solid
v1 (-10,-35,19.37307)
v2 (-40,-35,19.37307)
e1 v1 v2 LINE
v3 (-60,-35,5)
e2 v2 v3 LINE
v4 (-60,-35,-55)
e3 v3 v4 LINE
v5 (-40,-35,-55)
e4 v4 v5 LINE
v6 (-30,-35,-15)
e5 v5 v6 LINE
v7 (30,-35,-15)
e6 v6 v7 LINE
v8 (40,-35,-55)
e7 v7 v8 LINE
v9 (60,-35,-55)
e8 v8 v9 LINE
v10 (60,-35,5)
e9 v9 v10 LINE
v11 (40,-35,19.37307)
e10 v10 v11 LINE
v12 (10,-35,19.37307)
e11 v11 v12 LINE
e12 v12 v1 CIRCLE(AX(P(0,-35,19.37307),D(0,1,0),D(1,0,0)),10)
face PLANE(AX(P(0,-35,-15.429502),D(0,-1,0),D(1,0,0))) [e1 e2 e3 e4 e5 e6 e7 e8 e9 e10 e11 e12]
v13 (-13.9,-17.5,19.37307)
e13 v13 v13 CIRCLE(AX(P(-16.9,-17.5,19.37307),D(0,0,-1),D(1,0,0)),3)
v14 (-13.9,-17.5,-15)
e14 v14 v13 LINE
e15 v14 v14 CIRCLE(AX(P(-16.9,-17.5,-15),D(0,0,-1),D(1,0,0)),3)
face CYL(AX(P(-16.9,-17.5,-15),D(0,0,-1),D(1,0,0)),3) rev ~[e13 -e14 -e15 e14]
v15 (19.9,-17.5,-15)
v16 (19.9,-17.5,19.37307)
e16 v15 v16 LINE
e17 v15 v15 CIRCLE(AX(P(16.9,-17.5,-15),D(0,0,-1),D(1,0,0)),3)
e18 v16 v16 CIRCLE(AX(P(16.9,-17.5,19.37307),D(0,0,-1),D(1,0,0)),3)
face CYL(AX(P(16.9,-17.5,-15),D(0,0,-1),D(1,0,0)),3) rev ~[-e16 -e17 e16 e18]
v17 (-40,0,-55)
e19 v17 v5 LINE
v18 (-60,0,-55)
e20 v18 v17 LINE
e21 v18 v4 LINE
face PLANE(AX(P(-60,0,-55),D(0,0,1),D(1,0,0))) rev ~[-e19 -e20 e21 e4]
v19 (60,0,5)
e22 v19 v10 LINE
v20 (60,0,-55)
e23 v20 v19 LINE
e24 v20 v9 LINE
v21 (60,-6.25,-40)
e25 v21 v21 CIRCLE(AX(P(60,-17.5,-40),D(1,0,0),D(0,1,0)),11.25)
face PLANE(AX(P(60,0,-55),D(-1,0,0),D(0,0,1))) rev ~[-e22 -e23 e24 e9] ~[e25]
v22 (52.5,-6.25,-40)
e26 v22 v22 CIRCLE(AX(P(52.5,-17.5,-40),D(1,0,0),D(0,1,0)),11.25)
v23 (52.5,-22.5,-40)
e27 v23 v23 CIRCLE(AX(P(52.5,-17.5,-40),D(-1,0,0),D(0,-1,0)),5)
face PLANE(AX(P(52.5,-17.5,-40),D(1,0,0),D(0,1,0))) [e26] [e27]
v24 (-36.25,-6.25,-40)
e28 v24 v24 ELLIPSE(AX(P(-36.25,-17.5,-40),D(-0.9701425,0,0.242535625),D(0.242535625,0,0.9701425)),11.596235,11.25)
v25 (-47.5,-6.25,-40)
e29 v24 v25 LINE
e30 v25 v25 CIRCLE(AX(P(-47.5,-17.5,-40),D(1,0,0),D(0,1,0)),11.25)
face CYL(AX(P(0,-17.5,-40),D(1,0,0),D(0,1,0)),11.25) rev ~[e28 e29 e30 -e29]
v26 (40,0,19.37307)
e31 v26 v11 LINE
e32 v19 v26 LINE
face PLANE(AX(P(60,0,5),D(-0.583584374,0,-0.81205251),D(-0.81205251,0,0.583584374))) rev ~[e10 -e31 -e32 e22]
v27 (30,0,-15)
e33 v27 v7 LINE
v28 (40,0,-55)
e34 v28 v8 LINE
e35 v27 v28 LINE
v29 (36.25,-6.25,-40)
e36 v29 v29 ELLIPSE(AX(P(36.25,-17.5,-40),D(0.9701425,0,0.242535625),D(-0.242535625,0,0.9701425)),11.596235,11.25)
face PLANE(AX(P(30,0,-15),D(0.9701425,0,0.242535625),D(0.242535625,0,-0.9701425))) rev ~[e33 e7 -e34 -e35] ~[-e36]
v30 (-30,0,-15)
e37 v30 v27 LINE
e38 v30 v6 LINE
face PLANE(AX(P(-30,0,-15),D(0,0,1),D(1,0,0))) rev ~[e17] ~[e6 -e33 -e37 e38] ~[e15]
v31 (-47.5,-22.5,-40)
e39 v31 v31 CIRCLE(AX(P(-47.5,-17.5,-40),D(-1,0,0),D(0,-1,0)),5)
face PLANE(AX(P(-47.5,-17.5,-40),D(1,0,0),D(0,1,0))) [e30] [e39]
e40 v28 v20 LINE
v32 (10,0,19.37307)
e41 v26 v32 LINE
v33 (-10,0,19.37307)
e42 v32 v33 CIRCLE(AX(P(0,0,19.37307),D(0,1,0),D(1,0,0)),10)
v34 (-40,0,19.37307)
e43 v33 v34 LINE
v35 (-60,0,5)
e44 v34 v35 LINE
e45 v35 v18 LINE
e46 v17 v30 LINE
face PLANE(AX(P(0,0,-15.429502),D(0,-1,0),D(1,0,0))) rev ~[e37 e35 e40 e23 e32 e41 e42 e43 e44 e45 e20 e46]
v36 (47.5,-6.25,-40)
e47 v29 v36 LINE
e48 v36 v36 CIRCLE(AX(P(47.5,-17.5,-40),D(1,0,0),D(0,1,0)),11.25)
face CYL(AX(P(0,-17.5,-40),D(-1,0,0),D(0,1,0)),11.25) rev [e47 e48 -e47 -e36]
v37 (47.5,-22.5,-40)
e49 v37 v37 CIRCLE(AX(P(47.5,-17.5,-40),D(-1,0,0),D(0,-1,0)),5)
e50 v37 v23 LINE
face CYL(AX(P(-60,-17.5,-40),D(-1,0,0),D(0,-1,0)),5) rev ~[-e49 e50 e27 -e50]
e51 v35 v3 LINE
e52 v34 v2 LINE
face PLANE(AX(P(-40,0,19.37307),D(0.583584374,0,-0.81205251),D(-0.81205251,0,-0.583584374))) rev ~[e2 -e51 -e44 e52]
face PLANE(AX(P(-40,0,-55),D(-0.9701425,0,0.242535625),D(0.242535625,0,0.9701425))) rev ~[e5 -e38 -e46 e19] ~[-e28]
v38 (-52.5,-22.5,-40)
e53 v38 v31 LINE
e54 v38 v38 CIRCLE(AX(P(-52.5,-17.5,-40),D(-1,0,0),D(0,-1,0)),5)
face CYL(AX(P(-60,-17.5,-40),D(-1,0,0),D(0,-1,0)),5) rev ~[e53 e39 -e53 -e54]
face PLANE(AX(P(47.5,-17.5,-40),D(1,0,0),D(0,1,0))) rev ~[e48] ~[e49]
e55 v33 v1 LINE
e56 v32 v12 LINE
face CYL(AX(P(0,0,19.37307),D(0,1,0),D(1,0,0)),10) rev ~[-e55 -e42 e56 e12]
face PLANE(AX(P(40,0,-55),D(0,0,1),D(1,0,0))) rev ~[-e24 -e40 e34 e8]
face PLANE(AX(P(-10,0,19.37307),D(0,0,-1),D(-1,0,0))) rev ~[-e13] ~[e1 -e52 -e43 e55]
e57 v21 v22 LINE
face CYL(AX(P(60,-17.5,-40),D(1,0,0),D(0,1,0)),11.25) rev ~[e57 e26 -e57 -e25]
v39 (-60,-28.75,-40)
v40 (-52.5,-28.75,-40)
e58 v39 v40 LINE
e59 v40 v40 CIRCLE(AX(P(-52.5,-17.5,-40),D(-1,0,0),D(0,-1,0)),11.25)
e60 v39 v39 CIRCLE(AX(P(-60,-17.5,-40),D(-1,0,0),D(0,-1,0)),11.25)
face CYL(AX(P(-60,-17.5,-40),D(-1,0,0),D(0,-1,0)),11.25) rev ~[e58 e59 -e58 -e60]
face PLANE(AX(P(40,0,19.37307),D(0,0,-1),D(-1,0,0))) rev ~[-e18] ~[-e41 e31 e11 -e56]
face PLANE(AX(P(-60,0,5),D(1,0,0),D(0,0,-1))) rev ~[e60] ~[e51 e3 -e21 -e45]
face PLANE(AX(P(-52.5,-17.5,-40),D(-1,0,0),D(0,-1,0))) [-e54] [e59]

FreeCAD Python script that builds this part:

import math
import FreeCAD as App
import Part
import Sketcher
from FreeCAD import Vector
Q = App.Units.Quantity

doc = App.newDocument("Part")
params = doc.addObject("Spreadsheet::Sheet", "Params")
for row, (alias, value) in enumerate([
    ("sketch1_radius", "10 mm"),
    ("sketch1_width", "20 mm"),
    ("sketch1_width2", "60 mm"),
    ("sketch1_width3", "30 mm"),
    ("pad1_length", "35 mm"),
    ("sketch2_diameter", "6 mm"),
    ("sketch3_diameter", "10 mm"),
    ("sketch4_diameter", "22.5 mm"),
    ("pocket3_length", "7.5 mm"),
    ("sketch5_diameter", "22.5 mm"),
    ("pocket4_length", "7.5 mm"),
    ("sketch6_diameter", "22.5 mm"),
    ("pocket5_length", "47.5 mm"),
    ("sketch7_diameter", "22.5 mm"),
    ("pocket6_length", "47.5 mm"),
], start=1):
    params.set(f"A{row}", alias)
    params.set(f"B{row}", "=" + value)
    params.setAlias(f"B{row}", alias)

body = doc.addObject("PartDesign::Body", "Body")

# Sketch on XZ plane
sketch1 = body.newObject("Sketcher::SketchObject", "Sketch")
sketch1.AttachmentSupport = (doc.getObject("XZ_Plane"), [""])
sketch1.MapMode = "FlatFace"
sketch1.addGeometry([
    Part.LineSegment(Vector(-40, 19, 0), Vector(-60, 5, 0)),  # 0
    Part.LineSegment(Vector(-60, 5, 0), Vector(-60, -55, 0)),  # 1
    Part.LineSegment(Vector(-60, -55, 0), Vector(-40, -55, 0)),  # 2
    Part.LineSegment(Vector(-40, -55, 0), Vector(-30, -15, 0)),  # 3
    Part.LineSegment(Vector(-30, -15, 0), Vector(30, -15, 0)),  # 4
    Part.LineSegment(Vector(30, -15, 0), Vector(40, -55, 0)),  # 5
    Part.LineSegment(Vector(40, -55, 0), Vector(60, -55, 0)),  # 6
    Part.LineSegment(Vector(60, -55, 0), Vector(60, 5, 0)),  # 7
    Part.LineSegment(Vector(60, 5, 0), Vector(40, 19, 0)),  # 8
    Part.LineSegment(Vector(40, 19, 0), Vector(10, 19, 0)),  # 9
    Part.ArcOfCircle(Part.Circle(Vector(0, 19, 0), Vector(0, 0, 1), 10), math.radians(180), math.radians(360)),  # 10
    Part.LineSegment(Vector(-10, 19, 0), Vector(-40, 19, 0)),  # 11
], False)
sketch1.addConstraint([
    Sketcher.Constraint("Coincident", 0, 2, 1, 1),
    Sketcher.Constraint("Coincident", 1, 2, 2, 1),
    Sketcher.Constraint("Coincident", 2, 2, 3, 1),
    Sketcher.Constraint("Coincident", 3, 2, 4, 1),
    Sketcher.Constraint("Coincident", 4, 2, 5, 1),
    Sketcher.Constraint("Coincident", 5, 2, 6, 1),
    Sketcher.Constraint("Coincident", 6, 2, 7, 1),
    Sketcher.Constraint("Coincident", 7, 2, 8, 1),
    Sketcher.Constraint("Coincident", 8, 2, 9, 1),
    Sketcher.Constraint("Coincident", 9, 2, 10, 2),
    Sketcher.Constraint("Coincident", 10, 1, 11, 1),
    Sketcher.Constraint("Coincident", 11, 2, 0, 1),
    Sketcher.Constraint("Vertical", 1),
    Sketcher.Constraint("Horizontal", 2),
    Sketcher.Constraint("Horizontal", 4),
    Sketcher.Constraint("Horizontal", 6),
    Sketcher.Constraint("Vertical", 7),
    Sketcher.Constraint("Horizontal", 9),
    Sketcher.Constraint("Horizontal", 11),
    Sketcher.Constraint("Symmetric", 2, 2, 5, 2, -2),
    Sketcher.Constraint("Symmetric", 0, 2, 7, 2, -2),
    Sketcher.Constraint("Symmetric", 9, 2, 10, 1, -2),
    Sketcher.Constraint("Horizontal", 10, 3, 8, 2),
    Sketcher.Constraint("Vertical", 5, 2, 8, 2),
    Sketcher.Constraint("Vertical", 2, 2, 11, 2),
    Sketcher.Constraint("Equal", 4, 1),
    Sketcher.Constraint("Equal", 3, 5),
    Sketcher.Constraint("Radius", 10, Q("10 mm")),
    Sketcher.Constraint("DistanceX", 2, 1, 2, 2, Q("20 mm")),
    Sketcher.Constraint("DistanceX", 4, 1, 4, 2, Q("60 mm")),
    Sketcher.Constraint("DistanceX", 9, 2, 9, 1, Q("30 mm")),
    Sketcher.Constraint("DistanceY", -1, 1, 0, 2, Q("5 mm")),
    Sketcher.Constraint("DistanceY", 3, 2, -1, 1, Q("15 mm")),
    Sketcher.Constraint("Distance", 0, Q("24.628949 mm")),
])
sketch1.setExpression("Constraints[27]", "Params.sketch1_radius")
sketch1.setExpression("Constraints[28]", "Params.sketch1_width")
sketch1.setExpression("Constraints[29]", "Params.sketch1_width2")
sketch1.setExpression("Constraints[30]", "Params.sketch1_width3")
pad1 = body.newObject("PartDesign::Pad", "Pad")
pad1.Profile = sketch1
pad1.setExpression("Length", "Params.pad1_length")

# Sketch on XY plane
sketch2 = body.newObject("Sketcher::SketchObject", "Sketch001")
sketch2.AttachmentSupport = (doc.getObject("XY_Plane"), [""])
sketch2.MapMode = "FlatFace"
sketch2.AttachmentOffset = App.Placement(Vector(0, 0, -15), App.Rotation())
sketch2.addGeometry([
    Part.Circle(Vector(-16.9, -17.5, 0), Vector(0, 0, 1), 3),
    Part.Circle(Vector(16.9, -17.5, 0), Vector(0, 0, 1), 3),
], False)
sketch2.addConstraint([
    Sketcher.Constraint("Equal", 0, 1),
    Sketcher.Constraint("Symmetric", 0, 3, 1, 3, -2),
    Sketcher.Constraint("Diameter", 0, Q("6 mm")),
    Sketcher.Constraint("DistanceX", 0, 3, -1, 1, Q("16.9 mm")),
    Sketcher.Constraint("DistanceY", 0, 3, -1, 1, Q("17.5 mm")),
])
sketch2.setExpression("Constraints[2]", "Params.sketch2_diameter")
pocket1 = body.newObject("PartDesign::Pocket", "Pocket")
pocket1.Profile = sketch2
pocket1.Type = "ThroughAll"
pocket1.Reversed = True

# Sketch on YZ plane
sketch3 = body.newObject("Sketcher::SketchObject", "Sketch002")
sketch3.AttachmentSupport = (doc.getObject("YZ_Plane"), [""])
sketch3.MapMode = "FlatFace"
sketch3.AttachmentOffset = App.Placement(Vector(0, 0, -60), App.Rotation())
sketch3.addGeometry(Part.Circle(Vector(-18, -40, 0), Vector(0, 0, 1), 5), False)
sketch3.addConstraint([
    Sketcher.Constraint("Diameter", 0, Q("10 mm")),
    Sketcher.Constraint("DistanceY", 0, 3, -1, 1, Q("40 mm")),
    Sketcher.Constraint("DistanceX", 0, 3, -1, 1, Q("17.5 mm")),
])
sketch3.setExpression("Constraints[0]", "Params.sketch3_diameter")
pocket2 = body.newObject("PartDesign::Pocket", "Pocket001")
pocket2.Profile = sketch3
pocket2.Type = "ThroughAll"
pocket2.Reversed = True

# Sketch on YZ plane
sketch4 = body.newObject("Sketcher::SketchObject", "Sketch003")
sketch4.AttachmentSupport = (doc.getObject("YZ_Plane"), [""])
sketch4.MapMode = "FlatFace"
sketch4.AttachmentOffset = App.Placement(Vector(0, 0, -60), App.Rotation())
sketch4.addGeometry(Part.Circle(Vector(-18, -40, 0), Vector(0, 0, 1), 11), False)
sketch4.addConstraint([
    Sketcher.Constraint("Diameter", 0, Q("22.5 mm")),
    Sketcher.Constraint("DistanceY", 0, 3, -1, 1, Q("40 mm")),
    Sketcher.Constraint("DistanceX", 0, 3, -1, 1, Q("17.5 mm")),
])
sketch4.setExpression("Constraints[0]", "Params.sketch4_diameter")
pocket3 = body.newObject("PartDesign::Pocket", "Pocket002")
pocket3.Profile = sketch4
pocket3.setExpression("Length", "Params.pocket3_length")
pocket3.Reversed = True

# Sketch on YZ plane
sketch5 = body.newObject("Sketcher::SketchObject", "Sketch004")
sketch5.AttachmentSupport = (doc.getObject("YZ_Plane"), [""])
sketch5.MapMode = "FlatFace"
sketch5.AttachmentOffset = App.Placement(Vector(0, 0, 60), App.Rotation())
sketch5.addGeometry(Part.Circle(Vector(-18, -40, 0), Vector(0, 0, 1), 11), False)
sketch5.addConstraint([
    Sketcher.Constraint("Diameter", 0, Q("22.5 mm")),
    Sketcher.Constraint("DistanceY", 0, 3, -1, 1, Q("40 mm")),
    Sketcher.Constraint("DistanceX", 0, 3, -1, 1, Q("17.5 mm")),
])
sketch5.setExpression("Constraints[0]", "Params.sketch5_diameter")
pocket4 = body.newObject("PartDesign::Pocket", "Pocket003")
pocket4.Profile = sketch5
pocket4.setExpression("Length", "Params.pocket4_length")

# Sketch on YZ plane
sketch6 = body.newObject("Sketcher::SketchObject", "Sketch005")
sketch6.AttachmentSupport = (doc.getObject("YZ_Plane"), [""])
sketch6.MapMode = "FlatFace"
sketch6.addGeometry(Part.Circle(Vector(-18, -40, 0), Vector(0, 0, 1), 11), False)
sketch6.addConstraint([
    Sketcher.Constraint("Diameter", 0, Q("22.5 mm")),
    Sketcher.Constraint("DistanceY", 0, 3, -1, 1, Q("40 mm")),
    Sketcher.Constraint("DistanceX", 0, 3, -1, 1, Q("17.5 mm")),
])
sketch6.setExpression("Constraints[0]", "Params.sketch6_diameter")
pocket5 = body.newObject("PartDesign::Pocket", "Pocket004")
pocket5.Profile = sketch6
pocket5.setExpression("Length", "Params.pocket5_length")

# Sketch on YZ plane
sketch7 = body.newObject("Sketcher::SketchObject", "Sketch006")
sketch7.AttachmentSupport = (doc.getObject("YZ_Plane"), [""])
sketch7.MapMode = "FlatFace"
sketch7.addGeometry(Part.Circle(Vector(-18, -40, 0), Vector(0, 0, 1), 11), False)
sketch7.addConstraint([
    Sketcher.Constraint("Diameter", 0, Q("22.5 mm")),
    Sketcher.Constraint("DistanceY", 0, 3, -1, 1, Q("40 mm")),
    Sketcher.Constraint("DistanceX", 0, 3, -1, 1, Q("17.5 mm")),
])
sketch7.setExpression("Constraints[0]", "Params.sketch7_diameter")
pocket6 = body.newObject("PartDesign::Pocket", "Pocket005")
pocket6.Profile = sketch7
pocket6.setExpression("Length", "Params.pocket6_length")
pocket6.Reversed = True

doc.recompute()
